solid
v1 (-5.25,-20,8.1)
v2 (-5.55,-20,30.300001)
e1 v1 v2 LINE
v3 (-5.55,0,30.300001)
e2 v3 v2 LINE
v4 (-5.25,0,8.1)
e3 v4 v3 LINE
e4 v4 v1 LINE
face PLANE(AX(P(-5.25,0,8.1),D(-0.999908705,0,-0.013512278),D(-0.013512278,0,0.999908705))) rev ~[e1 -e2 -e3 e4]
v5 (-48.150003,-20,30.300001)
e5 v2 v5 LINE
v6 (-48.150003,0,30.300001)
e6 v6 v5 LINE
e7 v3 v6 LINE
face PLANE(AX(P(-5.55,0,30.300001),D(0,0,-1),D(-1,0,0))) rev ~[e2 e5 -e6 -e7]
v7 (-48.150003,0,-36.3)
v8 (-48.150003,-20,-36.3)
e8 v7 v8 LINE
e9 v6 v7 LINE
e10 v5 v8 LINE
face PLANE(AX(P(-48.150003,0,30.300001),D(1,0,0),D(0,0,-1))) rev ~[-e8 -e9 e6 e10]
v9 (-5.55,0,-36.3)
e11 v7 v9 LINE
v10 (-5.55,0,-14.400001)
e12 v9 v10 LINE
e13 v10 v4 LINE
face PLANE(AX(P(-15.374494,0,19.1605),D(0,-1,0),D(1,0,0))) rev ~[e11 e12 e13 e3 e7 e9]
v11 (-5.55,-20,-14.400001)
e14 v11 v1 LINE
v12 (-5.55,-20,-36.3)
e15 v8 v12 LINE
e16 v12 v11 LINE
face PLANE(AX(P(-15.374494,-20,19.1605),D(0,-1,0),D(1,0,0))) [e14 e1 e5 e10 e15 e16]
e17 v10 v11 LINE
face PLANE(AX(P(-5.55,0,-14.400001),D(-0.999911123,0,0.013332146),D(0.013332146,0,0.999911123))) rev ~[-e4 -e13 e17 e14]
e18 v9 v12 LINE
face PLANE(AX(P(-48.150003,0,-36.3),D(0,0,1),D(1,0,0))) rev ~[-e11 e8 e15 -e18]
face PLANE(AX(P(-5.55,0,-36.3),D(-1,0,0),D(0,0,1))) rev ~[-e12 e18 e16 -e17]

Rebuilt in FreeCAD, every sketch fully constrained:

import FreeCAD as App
import Part
import Sketcher

V = App.Vector
Q = App.Units.Quantity


def add_polygon(sketch, points):
    """Adds a closed chain of lines whose ends are joined by coincident constraints."""
    first, n = sketch.GeometryCount, len(points)
    for a, b in zip(points, points[1:] + points[:1]):
        sketch.addGeometry(Part.LineSegment(App.Vector(*a, 0), App.Vector(*b, 0)), False)
    for i in range(n):
        sketch.addConstraint(Sketcher.Constraint("Coincident", first + i, 2, first + (i + 1) % n, 1))

doc = App.newDocument("Part")
params = doc.addObject("Spreadsheet::Sheet", "Params")
for row, (alias, value) in enumerate([
    ("sketch1_height", "66.6 mm"),
    ("sketch1_height2", "21.899999 mm"),
    ("pad1_length", "20 mm"),
], start=1):
    params.set(f"A{row}", alias)
    params.set(f"B{row}", "=" + value)
    params.setAlias(f"B{row}", alias)

body = doc.addObject("PartDesign::Body", "Body")

sketch1 = doc.addObject("Sketcher::SketchObject", "Sketch")
body.addObject(sketch1)
sketch1.AttachmentSupport = (doc.XZ_Plane, [""])
sketch1.MapMode = "FlatFace"
add_polygon(sketch1, [(-5, 8), (-6, 30), (-48, 30), (-48, -36), (-6, -36), (-6, -14)])
sketch1.addConstraint([
    Sketcher.Constraint("Horizontal", 1),
    Sketcher.Constraint("Vertical", 2),
    Sketcher.Constraint("Horizontal", 3),
    Sketcher.Constraint("Vertical", 4),
    Sketcher.Constraint("Vertical", 0, 2, 3, 2),
    Sketcher.Constraint("DistanceY", 2, 2, 2, 1, Q("66.6 mm")),
    Sketcher.Constraint("DistanceY", 4, 1, 4, 2, Q("21.899999 mm")),
    Sketcher.Constraint("DistanceY", -1, 1, 0, 2, Q("30.300001 mm")),
    Sketcher.Constraint("DistanceY", -1, 1, 5, 2, Q("8.1 mm")),
    Sketcher.Constraint("DistanceX", 0, 2, 5, 2, Q("0.3 mm")),
    Sketcher.Constraint("DistanceX", 0, 2, -1, 1, Q("5.55 mm")),
    Sketcher.Constraint("DistanceX", 1, 2, 1, 1, Q("42.600003 mm")),
])
sketch1.setExpression("Constraints[11]", "Params.sketch1_height")
sketch1.setExpression("Constraints[12]", "Params.sketch1_height2")
pad1 = doc.addObject("PartDesign::Pad", "Pad")
body.addObject(pad1)
pad1.Profile = sketch1
pad1.setExpression("Length", "Params.pad1_length")

doc.recompute()
